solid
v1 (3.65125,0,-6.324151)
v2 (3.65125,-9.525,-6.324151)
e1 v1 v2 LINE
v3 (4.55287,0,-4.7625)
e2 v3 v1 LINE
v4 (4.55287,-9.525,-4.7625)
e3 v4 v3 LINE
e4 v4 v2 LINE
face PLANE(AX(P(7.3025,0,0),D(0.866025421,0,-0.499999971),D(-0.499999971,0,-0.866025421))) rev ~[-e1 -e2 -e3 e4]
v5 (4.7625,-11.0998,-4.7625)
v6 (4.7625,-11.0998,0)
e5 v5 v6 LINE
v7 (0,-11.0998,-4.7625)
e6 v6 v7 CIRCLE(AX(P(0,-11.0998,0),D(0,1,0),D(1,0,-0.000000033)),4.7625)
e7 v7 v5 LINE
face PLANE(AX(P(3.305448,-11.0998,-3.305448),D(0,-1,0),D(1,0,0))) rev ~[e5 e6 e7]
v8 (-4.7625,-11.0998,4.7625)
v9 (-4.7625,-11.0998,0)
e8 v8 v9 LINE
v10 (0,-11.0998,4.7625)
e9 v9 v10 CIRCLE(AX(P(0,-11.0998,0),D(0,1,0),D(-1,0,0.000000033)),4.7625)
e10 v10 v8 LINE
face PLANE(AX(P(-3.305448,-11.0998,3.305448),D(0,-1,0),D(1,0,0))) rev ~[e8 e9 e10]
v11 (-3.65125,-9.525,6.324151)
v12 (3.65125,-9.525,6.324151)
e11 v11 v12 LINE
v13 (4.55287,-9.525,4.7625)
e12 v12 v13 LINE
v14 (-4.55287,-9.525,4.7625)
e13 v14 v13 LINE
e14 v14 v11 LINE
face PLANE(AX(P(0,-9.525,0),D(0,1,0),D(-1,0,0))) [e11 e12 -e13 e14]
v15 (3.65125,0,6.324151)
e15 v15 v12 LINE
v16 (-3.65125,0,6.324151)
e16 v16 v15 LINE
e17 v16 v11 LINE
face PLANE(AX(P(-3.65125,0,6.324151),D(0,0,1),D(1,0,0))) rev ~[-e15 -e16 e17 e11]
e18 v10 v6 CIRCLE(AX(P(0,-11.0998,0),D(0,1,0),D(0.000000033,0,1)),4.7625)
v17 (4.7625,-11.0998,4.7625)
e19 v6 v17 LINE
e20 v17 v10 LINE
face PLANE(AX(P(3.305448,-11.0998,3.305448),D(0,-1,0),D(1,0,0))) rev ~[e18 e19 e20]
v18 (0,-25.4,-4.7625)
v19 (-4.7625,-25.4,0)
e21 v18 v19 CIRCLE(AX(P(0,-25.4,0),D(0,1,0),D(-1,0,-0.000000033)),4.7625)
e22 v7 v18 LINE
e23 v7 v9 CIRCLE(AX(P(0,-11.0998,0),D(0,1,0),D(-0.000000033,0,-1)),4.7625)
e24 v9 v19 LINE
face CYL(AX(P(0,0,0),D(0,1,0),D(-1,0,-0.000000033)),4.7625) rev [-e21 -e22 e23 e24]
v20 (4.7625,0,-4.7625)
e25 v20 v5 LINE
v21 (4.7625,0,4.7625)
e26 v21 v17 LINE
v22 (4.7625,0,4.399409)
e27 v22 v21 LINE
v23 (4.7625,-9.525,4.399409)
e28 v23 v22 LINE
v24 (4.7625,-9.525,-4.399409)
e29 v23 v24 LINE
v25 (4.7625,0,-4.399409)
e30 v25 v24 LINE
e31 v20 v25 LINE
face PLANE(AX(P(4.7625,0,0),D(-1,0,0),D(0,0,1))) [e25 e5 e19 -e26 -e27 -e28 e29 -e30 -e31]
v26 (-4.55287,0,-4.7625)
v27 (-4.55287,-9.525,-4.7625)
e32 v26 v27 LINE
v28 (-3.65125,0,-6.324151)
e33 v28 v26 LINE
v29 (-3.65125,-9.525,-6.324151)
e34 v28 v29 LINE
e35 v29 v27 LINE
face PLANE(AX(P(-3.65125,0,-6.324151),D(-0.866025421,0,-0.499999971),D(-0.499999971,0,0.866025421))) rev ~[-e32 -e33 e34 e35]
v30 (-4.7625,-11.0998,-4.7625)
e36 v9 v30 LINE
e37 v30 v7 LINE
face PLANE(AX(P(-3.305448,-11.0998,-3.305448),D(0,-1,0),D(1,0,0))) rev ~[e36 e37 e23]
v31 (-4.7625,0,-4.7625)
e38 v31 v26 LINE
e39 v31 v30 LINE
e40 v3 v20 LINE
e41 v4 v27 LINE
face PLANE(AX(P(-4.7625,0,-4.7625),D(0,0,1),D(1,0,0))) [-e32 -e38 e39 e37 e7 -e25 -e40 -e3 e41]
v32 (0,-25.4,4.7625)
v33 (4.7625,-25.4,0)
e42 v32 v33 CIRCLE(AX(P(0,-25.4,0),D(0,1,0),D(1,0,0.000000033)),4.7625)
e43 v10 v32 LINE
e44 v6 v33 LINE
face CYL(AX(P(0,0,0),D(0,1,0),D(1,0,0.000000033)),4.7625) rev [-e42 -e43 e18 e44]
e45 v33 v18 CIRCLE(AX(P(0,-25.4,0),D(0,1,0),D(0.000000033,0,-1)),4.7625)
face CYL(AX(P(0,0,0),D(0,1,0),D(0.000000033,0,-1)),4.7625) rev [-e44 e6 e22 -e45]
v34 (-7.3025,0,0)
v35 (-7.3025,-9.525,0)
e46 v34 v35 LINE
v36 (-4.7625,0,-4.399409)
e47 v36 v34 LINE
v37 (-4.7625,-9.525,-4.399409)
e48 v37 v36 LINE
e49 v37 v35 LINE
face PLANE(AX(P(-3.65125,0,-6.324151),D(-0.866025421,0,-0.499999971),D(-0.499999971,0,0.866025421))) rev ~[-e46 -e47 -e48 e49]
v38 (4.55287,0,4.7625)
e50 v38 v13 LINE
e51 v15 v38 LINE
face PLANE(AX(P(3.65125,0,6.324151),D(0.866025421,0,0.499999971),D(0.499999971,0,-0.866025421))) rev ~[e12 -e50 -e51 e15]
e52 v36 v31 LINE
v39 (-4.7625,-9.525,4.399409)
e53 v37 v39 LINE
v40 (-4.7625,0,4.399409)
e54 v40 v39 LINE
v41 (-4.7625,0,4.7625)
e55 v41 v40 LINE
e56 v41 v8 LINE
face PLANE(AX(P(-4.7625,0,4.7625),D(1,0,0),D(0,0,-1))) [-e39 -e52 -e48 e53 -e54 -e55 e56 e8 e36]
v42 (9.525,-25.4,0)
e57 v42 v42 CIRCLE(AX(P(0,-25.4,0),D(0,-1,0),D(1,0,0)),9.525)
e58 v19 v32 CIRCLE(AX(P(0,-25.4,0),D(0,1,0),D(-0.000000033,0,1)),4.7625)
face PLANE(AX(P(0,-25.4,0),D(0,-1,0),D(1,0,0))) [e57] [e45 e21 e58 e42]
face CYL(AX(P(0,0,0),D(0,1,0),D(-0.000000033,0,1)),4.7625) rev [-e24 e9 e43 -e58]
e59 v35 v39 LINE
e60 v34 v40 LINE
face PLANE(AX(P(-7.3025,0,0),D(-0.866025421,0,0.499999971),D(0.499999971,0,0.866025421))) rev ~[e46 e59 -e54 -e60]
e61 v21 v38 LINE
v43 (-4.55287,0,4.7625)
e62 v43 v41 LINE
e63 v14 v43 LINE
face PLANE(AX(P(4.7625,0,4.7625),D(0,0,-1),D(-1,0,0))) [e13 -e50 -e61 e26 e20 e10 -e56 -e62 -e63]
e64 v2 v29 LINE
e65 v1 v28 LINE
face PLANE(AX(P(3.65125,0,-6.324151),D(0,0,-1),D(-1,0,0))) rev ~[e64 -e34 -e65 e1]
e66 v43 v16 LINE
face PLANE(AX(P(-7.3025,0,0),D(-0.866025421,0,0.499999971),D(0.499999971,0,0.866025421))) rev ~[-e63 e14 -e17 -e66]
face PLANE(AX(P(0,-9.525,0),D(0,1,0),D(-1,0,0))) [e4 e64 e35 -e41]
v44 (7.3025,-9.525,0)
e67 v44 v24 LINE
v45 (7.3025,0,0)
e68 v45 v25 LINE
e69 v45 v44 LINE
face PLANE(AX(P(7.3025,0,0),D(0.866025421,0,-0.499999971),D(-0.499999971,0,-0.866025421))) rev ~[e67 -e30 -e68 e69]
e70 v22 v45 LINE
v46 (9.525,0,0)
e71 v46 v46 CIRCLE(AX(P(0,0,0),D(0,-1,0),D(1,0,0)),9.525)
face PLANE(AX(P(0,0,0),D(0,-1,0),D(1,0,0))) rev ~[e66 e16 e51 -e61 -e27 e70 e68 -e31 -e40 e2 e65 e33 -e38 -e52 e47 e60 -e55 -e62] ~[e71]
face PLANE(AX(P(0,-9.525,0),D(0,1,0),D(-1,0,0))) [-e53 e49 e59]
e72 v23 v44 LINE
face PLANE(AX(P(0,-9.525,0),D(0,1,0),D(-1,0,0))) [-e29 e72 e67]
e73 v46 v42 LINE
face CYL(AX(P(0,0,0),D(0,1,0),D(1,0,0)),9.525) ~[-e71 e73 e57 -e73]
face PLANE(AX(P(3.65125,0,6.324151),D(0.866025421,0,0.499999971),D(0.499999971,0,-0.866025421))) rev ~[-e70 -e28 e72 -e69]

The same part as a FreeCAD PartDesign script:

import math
import FreeCAD as App
import Part
import Sketcher
Q = App.Units.Quantity

doc = App.newDocument("Part")
params = doc.addObject("Spreadsheet::Sheet", "Params")
for row, (alias, value) in enumerate([
    ("sketch1_diameter", "0.75 in"),
    ("pad1_length", "1 in"),
    ("sketch2_radius", "0.1875 in"),
    ("sketch3_radius", "0.1875 in"),
    ("pocket2_length", "0.437 in"),
    ("pocket3_length", "0.375 in"),
], start=1):
    params.set(f"A{row}", alias)
    params.set(f"B{row}", "=" + value)
    params.setAlias(f"B{row}", alias)

body = doc.addObject("PartDesign::Body", "Body")

sketch1 = body.newObject("Sketcher::SketchObject", "Sketch")
sketch1.AttachmentSupport = (doc.getObject("XZ_Plane"), [""])
sketch1.MapMode = "FlatFace"
sketch1.addGeometry(Part.Circle(App.Vector(0, 0, 0), App.Vector(0, 0, 1), 9.525), False)
sketch1.addConstraint([
    Sketcher.Constraint("Coincident", 0, 3, -1, 1),
    Sketcher.Constraint("Diameter", 0, Q("0.75 in")),
])
sketch1.setExpression("Constraints[1]", "Params.sketch1_diameter")
pad1 = body.newObject("PartDesign::Pad", "Pad")
pad1.Profile = sketch1
pad1.setExpression("Length", "Params.pad1_length")

sketch2 = body.newObject("Sketcher::SketchObject", "Sketch001")
sketch2.AttachmentSupport = (doc.getObject("XZ_Plane"), [""])
sketch2.MapMode = "FlatFace"
sketch2.addGeometry([
    Part.ArcOfCircle(Part.Circle(App.Vector(0, 0, 0), App.Vector(0, 0, 1), 4.7625), math.radians(0.000002), math.radians(89.999998)),
    Part.ArcOfCircle(Part.Circle(App.Vector(0, 0, 0), App.Vector(0, 0, 1), 4.7625), math.radians(90.000002), math.radians(179.999998)),
    Part.ArcOfCircle(Part.Circle(App.Vector(0, 0, 0), App.Vector(0, 0, 1), 4.7625), math.radians(-179.999998), math.radians(-90.000002)),
    Part.ArcOfCircle(Part.Circle(App.Vector(0, 0, 0), App.Vector(0, 0, 1), 4.7625), math.radians(-89.999998), math.radians(-0.000002)),
], False)
sketch2.addConstraint([
    Sketcher.Constraint("Tangent", 0, 2, 1, 1),
    Sketcher.Constraint("Tangent", 1, 2, 2, 1),
    Sketcher.Constraint("Tangent", 2, 2, 3, 1),
    Sketcher.Constraint("Tangent", 3, 2, 0, 1),
    Sketcher.Constraint("Coincident", 0, 3, -1, 1),
    Sketcher.Constraint("Equal", 0, 1),
    Sketcher.Constraint("PointOnObject", 0, 2, -2),
    Sketcher.Constraint("PointOnObject", 1, 2, -1),
    Sketcher.Constraint("PointOnObject", 2, 2, -2),
    Sketcher.Constraint("PointOnObject", 3, 2, -1),
    Sketcher.Constraint("Radius", 0, Q("0.1875 in")),
])
sketch2.setExpression("Constraints[10]", "Params.sketch2_radius")
pocket1 = body.newObject("PartDesign::Pocket", "Pocket")
pocket1.Profile = sketch2
pocket1.Type = "ThroughAll"
pocket1.Reversed = True

sketch3 = body.newObject("Sketcher::SketchObject", "Sketch002")
sketch3.AttachmentSupport = (doc.getObject("XZ_Plane"), [""])
sketch3.MapMode = "FlatFace"
sketch3.addGeometry([
    Part.LineSegment(App.Vector(0, 4.7625, 0), App.Vector(-4.7625, 4.7625, 0)),
    Part.LineSegment(App.Vector(-4.7625, 4.7625, 0), App.Vector(-4.7625, 0, 0)),
    Part.ArcOfCircle(Part.Circle(App.Vector(0, 0, 0), App.Vector(0, 0, 1), 4.7625), math.radians(90.000002), math.radians(179.999998)),
    Part.LineSegment(App.Vector(4.7625, 4.7625, 0), App.Vector(0, 4.7625, 0)),
    Part.ArcOfCircle(Part.Circle(App.Vector(0, 0, 0), App.Vector(0, 0, 1), 4.7625), math.radians(0.000002), math.radians(89.999998)),
    Part.LineSegment(App.Vector(4.7625, 0, 0), App.Vector(4.7625, 4.7625, 0)),
    Part.ArcOfCircle(Part.Circle(App.Vector(0, 0, 0), App.Vector(0, 0, 1), 4.7625), math.radians(-179.999998), math.radians(-90.000002)),
    Part.LineSegment(App.Vector(-4.7625, 0, 0), App.Vector(-4.7625, -4.7625, 0)),
    Part.LineSegment(App.Vector(-4.7625, -4.7625, 0), App.Vector(0, -4.7625, 0)),
    Part.LineSegment(App.Vector(4.7625, -4.7625, 0), App.Vector(4.7625, 0, 0)),
    Part.ArcOfCircle(Part.Circle(App.Vector(0, 0, 0), App.Vector(0, 0, 1), 4.7625), math.radians(-89.999998), math.radians(-0.000002)),
    Part.LineSegment(App.Vector(0, -4.7625, 0), App.Vector(4.7625, -4.7625, 0)),
], False)
sketch3.addConstraint([
    Sketcher.Constraint("Coincident", 0, 2, 1, 1),
    Sketcher.Constraint("Tangent", 1, 2, 2, 2),
    Sketcher.Constraint("Tangent", 2, 1, 0, 1),
    Sketcher.Constraint("Tangent", 3, 2, 4, 2),
    Sketcher.Constraint("Tangent", 4, 1, 5, 1),
    Sketcher.Constraint("Coincident", 5, 2, 3, 1),
    Sketcher.Constraint("Tangent", 6, 1, 7, 1),
    Sketcher.Constraint("Coincident", 7, 2, 8, 1),
    Sketcher.Constraint("Tangent", 8, 2, 6, 2),
    Sketcher.Constraint("Tangent", 9, 2, 10, 2),
    Sketcher.Constraint("Tangent", 10, 1, 11, 1),
    Sketcher.Constraint("Coincident", 11, 2, 9, 1),
    Sketcher.Constraint("Horizontal", 0),
    Sketcher.Constraint("Vertical", 1),
    Sketcher.Constraint("Horizontal", 3),
    Sketcher.Constraint("Vertical", 5),
    Sketcher.Constraint("Vertical", 7),
    Sketcher.Constraint("Horizontal", 8),
    Sketcher.Constraint("Vertical", 9),
    Sketcher.Constraint("Horizontal", 11),
    Sketcher.Constraint("Coincident", 2, 3, -1, 1),
    Sketcher.Constraint("Coincident", 4, 3, -1, 1),
    Sketcher.Constraint("Coincident", 6, 3, -1, 1),
    Sketcher.Constraint("Coincident", 10, 3, -1, 1),
    Sketcher.Constraint("Equal", 2, 4),
    Sketcher.Constraint("Equal", 4, 6),
    Sketcher.Constraint("Equal", 6, 10),
    Sketcher.Constraint("Radius", 2, Q("0.1875 in")),
])
sketch3.setExpression("Constraints[27]", "Params.sketch3_radius")
pocket2 = body.newObject("PartDesign::Pocket", "Pocket001")
pocket2.Profile = sketch3
pocket2.setExpression("Length", "Params.pocket2_length")
pocket2.Reversed = True

sketch4 = body.newObject("Sketcher::SketchObject", "Sketch003")
sketch4.AttachmentSupport = (doc.getObject("XZ_Plane"), [""])
sketch4.MapMode = "FlatFace"
sketch4.addGeometry([
    Part.LineSegment(App.Vector(-3.65125, 6.324151, 0), App.Vector(3.65125, 6.324151, 0)),
    Part.LineSegment(App.Vector(3.65125, 6.324151, 0), App.Vector(7.3025, 0, 0)),
    Part.LineSegment(App.Vector(7.3025, 0, 0), App.Vector(3.65125, -6.324151, 0)),
    Part.LineSegment(App.Vector(3.65125, -6.324151, 0), App.Vector(-3.65125, -6.324151, 0)),
    Part.LineSegment(App.Vector(-3.65125, -6.324151, 0), App.Vector(-7.3025, 0, 0)),
    Part.LineSegment(App.Vector(-7.3025, 0, 0), App.Vector(-3.65125, 6.324151, 0)),
], False)
sketch4.addConstraint([
    Sketcher.Constraint("Coincident", 0, 2, 1, 1),
    Sketcher.Constraint("Coincident", 1, 2, 2, 1),
    Sketcher.Constraint("Coincident", 2, 2, 3, 1),
    Sketcher.Constraint("Coincident", 3, 2, 4, 1),
    Sketcher.Constraint("Coincident", 4, 2, 5, 1),
    Sketcher.Constraint("Coincident", 5, 2, 0, 1),
    Sketcher.Constraint("Horizontal", 0),
    Sketcher.Constraint("Horizontal", 3),
    Sketcher.Constraint("Symmetric", 0, 2, 3, 2, -1, 1),
    Sketcher.Constraint("Symmetric", 1, 2, 4, 2, -1, 1),
    Sketcher.Constraint("PointOnObject", 1, 2, -1),
    Sketcher.Constraint("Parallel", 2, 5),
    Sketcher.Constraint("Vertical", 0, 2, 2, 2),
    Sketcher.Constraint("Angle", 1, Q("-60.000002 deg")),
    Sketcher.Constraint("DistanceX", 0, 1, 0, 2, Q("0.2875 in")),
    Sketcher.Constraint("DistanceX", 4, 2, 1, 2, Q("0.575 in")),
])
pocket3 = body.newObject("PartDesign::Pocket", "Pocket002")
pocket3.Profile = sketch4
pocket3.setExpression("Length", "Params.pocket3_length")
pocket3.Reversed = True

doc.recompute()
